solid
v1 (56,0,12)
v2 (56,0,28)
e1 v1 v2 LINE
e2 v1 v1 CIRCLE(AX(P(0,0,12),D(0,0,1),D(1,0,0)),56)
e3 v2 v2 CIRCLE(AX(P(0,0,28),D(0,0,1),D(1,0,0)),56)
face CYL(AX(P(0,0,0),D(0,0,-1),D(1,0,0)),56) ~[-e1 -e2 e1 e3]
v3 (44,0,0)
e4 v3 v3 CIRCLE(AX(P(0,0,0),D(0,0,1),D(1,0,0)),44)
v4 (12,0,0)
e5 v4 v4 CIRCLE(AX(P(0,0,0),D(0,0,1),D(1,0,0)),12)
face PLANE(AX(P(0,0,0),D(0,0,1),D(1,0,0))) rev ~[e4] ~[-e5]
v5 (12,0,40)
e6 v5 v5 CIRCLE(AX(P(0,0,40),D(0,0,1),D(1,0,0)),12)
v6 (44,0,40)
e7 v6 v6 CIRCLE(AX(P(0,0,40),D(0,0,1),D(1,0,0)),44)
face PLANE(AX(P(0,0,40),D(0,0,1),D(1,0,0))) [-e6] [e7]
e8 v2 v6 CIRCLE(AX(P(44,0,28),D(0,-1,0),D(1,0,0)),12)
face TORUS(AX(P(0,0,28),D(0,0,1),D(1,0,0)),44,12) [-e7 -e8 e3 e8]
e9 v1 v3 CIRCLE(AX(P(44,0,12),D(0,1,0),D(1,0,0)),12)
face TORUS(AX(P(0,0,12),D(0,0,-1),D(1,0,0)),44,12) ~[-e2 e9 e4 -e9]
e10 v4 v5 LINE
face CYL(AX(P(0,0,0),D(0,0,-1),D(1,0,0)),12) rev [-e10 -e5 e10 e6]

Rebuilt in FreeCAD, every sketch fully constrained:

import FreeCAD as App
import Part
import Sketcher

V = App.Vector


def edges_at(feature, points):
    """Names of the edges that pass closest to the given points."""
    edges = feature.Shape.Edges
    near = lambda p: min(range(len(edges)), key=lambda i: edges[i].distToShape(Part.Vertex(*p))[0])
    return sorted({f"Edge{near(p) + 1}" for p in points})

doc = App.newDocument("Part")
body = doc.addObject("PartDesign::Body", "Body")

# Sketch on XY plane
sketch1 = body.newObject("Sketcher::SketchObject", "Sketch")
sketch1.AttachmentSupport = (doc.getObject("XY_Plane"), [""])
sketch1.MapMode = "FlatFace"
sketch1.addGeometry([
    Part.Circle(V(0, 0, 0), V(0, 0, 1), 56),
    Part.Circle(V(0, 0, 0), V(0, 0, 1), 12),
], False)
sketch1.addConstraint([
    Sketcher.Constraint("Coincident", 0, 3, -1, 1),
    Sketcher.Constraint("Coincident", 1, 3, -1, 1),
    Sketcher.Constraint("Diameter", 0, 112.0),
    Sketcher.Constraint("Diameter", 1, 24.0),
])
pad1 = body.newObject("PartDesign::Pad", "Pad")
pad1.Profile = sketch1
pad1.Length = 40
doc.recompute()

fillet = body.newObject("PartDesign::Fillet", "Fillet")
fillet.Base = (pad1, edges_at(pad1, [(-56, 0, 40), (-56, 0, 0)]))
fillet.Radius = 12

doc.recompute()
